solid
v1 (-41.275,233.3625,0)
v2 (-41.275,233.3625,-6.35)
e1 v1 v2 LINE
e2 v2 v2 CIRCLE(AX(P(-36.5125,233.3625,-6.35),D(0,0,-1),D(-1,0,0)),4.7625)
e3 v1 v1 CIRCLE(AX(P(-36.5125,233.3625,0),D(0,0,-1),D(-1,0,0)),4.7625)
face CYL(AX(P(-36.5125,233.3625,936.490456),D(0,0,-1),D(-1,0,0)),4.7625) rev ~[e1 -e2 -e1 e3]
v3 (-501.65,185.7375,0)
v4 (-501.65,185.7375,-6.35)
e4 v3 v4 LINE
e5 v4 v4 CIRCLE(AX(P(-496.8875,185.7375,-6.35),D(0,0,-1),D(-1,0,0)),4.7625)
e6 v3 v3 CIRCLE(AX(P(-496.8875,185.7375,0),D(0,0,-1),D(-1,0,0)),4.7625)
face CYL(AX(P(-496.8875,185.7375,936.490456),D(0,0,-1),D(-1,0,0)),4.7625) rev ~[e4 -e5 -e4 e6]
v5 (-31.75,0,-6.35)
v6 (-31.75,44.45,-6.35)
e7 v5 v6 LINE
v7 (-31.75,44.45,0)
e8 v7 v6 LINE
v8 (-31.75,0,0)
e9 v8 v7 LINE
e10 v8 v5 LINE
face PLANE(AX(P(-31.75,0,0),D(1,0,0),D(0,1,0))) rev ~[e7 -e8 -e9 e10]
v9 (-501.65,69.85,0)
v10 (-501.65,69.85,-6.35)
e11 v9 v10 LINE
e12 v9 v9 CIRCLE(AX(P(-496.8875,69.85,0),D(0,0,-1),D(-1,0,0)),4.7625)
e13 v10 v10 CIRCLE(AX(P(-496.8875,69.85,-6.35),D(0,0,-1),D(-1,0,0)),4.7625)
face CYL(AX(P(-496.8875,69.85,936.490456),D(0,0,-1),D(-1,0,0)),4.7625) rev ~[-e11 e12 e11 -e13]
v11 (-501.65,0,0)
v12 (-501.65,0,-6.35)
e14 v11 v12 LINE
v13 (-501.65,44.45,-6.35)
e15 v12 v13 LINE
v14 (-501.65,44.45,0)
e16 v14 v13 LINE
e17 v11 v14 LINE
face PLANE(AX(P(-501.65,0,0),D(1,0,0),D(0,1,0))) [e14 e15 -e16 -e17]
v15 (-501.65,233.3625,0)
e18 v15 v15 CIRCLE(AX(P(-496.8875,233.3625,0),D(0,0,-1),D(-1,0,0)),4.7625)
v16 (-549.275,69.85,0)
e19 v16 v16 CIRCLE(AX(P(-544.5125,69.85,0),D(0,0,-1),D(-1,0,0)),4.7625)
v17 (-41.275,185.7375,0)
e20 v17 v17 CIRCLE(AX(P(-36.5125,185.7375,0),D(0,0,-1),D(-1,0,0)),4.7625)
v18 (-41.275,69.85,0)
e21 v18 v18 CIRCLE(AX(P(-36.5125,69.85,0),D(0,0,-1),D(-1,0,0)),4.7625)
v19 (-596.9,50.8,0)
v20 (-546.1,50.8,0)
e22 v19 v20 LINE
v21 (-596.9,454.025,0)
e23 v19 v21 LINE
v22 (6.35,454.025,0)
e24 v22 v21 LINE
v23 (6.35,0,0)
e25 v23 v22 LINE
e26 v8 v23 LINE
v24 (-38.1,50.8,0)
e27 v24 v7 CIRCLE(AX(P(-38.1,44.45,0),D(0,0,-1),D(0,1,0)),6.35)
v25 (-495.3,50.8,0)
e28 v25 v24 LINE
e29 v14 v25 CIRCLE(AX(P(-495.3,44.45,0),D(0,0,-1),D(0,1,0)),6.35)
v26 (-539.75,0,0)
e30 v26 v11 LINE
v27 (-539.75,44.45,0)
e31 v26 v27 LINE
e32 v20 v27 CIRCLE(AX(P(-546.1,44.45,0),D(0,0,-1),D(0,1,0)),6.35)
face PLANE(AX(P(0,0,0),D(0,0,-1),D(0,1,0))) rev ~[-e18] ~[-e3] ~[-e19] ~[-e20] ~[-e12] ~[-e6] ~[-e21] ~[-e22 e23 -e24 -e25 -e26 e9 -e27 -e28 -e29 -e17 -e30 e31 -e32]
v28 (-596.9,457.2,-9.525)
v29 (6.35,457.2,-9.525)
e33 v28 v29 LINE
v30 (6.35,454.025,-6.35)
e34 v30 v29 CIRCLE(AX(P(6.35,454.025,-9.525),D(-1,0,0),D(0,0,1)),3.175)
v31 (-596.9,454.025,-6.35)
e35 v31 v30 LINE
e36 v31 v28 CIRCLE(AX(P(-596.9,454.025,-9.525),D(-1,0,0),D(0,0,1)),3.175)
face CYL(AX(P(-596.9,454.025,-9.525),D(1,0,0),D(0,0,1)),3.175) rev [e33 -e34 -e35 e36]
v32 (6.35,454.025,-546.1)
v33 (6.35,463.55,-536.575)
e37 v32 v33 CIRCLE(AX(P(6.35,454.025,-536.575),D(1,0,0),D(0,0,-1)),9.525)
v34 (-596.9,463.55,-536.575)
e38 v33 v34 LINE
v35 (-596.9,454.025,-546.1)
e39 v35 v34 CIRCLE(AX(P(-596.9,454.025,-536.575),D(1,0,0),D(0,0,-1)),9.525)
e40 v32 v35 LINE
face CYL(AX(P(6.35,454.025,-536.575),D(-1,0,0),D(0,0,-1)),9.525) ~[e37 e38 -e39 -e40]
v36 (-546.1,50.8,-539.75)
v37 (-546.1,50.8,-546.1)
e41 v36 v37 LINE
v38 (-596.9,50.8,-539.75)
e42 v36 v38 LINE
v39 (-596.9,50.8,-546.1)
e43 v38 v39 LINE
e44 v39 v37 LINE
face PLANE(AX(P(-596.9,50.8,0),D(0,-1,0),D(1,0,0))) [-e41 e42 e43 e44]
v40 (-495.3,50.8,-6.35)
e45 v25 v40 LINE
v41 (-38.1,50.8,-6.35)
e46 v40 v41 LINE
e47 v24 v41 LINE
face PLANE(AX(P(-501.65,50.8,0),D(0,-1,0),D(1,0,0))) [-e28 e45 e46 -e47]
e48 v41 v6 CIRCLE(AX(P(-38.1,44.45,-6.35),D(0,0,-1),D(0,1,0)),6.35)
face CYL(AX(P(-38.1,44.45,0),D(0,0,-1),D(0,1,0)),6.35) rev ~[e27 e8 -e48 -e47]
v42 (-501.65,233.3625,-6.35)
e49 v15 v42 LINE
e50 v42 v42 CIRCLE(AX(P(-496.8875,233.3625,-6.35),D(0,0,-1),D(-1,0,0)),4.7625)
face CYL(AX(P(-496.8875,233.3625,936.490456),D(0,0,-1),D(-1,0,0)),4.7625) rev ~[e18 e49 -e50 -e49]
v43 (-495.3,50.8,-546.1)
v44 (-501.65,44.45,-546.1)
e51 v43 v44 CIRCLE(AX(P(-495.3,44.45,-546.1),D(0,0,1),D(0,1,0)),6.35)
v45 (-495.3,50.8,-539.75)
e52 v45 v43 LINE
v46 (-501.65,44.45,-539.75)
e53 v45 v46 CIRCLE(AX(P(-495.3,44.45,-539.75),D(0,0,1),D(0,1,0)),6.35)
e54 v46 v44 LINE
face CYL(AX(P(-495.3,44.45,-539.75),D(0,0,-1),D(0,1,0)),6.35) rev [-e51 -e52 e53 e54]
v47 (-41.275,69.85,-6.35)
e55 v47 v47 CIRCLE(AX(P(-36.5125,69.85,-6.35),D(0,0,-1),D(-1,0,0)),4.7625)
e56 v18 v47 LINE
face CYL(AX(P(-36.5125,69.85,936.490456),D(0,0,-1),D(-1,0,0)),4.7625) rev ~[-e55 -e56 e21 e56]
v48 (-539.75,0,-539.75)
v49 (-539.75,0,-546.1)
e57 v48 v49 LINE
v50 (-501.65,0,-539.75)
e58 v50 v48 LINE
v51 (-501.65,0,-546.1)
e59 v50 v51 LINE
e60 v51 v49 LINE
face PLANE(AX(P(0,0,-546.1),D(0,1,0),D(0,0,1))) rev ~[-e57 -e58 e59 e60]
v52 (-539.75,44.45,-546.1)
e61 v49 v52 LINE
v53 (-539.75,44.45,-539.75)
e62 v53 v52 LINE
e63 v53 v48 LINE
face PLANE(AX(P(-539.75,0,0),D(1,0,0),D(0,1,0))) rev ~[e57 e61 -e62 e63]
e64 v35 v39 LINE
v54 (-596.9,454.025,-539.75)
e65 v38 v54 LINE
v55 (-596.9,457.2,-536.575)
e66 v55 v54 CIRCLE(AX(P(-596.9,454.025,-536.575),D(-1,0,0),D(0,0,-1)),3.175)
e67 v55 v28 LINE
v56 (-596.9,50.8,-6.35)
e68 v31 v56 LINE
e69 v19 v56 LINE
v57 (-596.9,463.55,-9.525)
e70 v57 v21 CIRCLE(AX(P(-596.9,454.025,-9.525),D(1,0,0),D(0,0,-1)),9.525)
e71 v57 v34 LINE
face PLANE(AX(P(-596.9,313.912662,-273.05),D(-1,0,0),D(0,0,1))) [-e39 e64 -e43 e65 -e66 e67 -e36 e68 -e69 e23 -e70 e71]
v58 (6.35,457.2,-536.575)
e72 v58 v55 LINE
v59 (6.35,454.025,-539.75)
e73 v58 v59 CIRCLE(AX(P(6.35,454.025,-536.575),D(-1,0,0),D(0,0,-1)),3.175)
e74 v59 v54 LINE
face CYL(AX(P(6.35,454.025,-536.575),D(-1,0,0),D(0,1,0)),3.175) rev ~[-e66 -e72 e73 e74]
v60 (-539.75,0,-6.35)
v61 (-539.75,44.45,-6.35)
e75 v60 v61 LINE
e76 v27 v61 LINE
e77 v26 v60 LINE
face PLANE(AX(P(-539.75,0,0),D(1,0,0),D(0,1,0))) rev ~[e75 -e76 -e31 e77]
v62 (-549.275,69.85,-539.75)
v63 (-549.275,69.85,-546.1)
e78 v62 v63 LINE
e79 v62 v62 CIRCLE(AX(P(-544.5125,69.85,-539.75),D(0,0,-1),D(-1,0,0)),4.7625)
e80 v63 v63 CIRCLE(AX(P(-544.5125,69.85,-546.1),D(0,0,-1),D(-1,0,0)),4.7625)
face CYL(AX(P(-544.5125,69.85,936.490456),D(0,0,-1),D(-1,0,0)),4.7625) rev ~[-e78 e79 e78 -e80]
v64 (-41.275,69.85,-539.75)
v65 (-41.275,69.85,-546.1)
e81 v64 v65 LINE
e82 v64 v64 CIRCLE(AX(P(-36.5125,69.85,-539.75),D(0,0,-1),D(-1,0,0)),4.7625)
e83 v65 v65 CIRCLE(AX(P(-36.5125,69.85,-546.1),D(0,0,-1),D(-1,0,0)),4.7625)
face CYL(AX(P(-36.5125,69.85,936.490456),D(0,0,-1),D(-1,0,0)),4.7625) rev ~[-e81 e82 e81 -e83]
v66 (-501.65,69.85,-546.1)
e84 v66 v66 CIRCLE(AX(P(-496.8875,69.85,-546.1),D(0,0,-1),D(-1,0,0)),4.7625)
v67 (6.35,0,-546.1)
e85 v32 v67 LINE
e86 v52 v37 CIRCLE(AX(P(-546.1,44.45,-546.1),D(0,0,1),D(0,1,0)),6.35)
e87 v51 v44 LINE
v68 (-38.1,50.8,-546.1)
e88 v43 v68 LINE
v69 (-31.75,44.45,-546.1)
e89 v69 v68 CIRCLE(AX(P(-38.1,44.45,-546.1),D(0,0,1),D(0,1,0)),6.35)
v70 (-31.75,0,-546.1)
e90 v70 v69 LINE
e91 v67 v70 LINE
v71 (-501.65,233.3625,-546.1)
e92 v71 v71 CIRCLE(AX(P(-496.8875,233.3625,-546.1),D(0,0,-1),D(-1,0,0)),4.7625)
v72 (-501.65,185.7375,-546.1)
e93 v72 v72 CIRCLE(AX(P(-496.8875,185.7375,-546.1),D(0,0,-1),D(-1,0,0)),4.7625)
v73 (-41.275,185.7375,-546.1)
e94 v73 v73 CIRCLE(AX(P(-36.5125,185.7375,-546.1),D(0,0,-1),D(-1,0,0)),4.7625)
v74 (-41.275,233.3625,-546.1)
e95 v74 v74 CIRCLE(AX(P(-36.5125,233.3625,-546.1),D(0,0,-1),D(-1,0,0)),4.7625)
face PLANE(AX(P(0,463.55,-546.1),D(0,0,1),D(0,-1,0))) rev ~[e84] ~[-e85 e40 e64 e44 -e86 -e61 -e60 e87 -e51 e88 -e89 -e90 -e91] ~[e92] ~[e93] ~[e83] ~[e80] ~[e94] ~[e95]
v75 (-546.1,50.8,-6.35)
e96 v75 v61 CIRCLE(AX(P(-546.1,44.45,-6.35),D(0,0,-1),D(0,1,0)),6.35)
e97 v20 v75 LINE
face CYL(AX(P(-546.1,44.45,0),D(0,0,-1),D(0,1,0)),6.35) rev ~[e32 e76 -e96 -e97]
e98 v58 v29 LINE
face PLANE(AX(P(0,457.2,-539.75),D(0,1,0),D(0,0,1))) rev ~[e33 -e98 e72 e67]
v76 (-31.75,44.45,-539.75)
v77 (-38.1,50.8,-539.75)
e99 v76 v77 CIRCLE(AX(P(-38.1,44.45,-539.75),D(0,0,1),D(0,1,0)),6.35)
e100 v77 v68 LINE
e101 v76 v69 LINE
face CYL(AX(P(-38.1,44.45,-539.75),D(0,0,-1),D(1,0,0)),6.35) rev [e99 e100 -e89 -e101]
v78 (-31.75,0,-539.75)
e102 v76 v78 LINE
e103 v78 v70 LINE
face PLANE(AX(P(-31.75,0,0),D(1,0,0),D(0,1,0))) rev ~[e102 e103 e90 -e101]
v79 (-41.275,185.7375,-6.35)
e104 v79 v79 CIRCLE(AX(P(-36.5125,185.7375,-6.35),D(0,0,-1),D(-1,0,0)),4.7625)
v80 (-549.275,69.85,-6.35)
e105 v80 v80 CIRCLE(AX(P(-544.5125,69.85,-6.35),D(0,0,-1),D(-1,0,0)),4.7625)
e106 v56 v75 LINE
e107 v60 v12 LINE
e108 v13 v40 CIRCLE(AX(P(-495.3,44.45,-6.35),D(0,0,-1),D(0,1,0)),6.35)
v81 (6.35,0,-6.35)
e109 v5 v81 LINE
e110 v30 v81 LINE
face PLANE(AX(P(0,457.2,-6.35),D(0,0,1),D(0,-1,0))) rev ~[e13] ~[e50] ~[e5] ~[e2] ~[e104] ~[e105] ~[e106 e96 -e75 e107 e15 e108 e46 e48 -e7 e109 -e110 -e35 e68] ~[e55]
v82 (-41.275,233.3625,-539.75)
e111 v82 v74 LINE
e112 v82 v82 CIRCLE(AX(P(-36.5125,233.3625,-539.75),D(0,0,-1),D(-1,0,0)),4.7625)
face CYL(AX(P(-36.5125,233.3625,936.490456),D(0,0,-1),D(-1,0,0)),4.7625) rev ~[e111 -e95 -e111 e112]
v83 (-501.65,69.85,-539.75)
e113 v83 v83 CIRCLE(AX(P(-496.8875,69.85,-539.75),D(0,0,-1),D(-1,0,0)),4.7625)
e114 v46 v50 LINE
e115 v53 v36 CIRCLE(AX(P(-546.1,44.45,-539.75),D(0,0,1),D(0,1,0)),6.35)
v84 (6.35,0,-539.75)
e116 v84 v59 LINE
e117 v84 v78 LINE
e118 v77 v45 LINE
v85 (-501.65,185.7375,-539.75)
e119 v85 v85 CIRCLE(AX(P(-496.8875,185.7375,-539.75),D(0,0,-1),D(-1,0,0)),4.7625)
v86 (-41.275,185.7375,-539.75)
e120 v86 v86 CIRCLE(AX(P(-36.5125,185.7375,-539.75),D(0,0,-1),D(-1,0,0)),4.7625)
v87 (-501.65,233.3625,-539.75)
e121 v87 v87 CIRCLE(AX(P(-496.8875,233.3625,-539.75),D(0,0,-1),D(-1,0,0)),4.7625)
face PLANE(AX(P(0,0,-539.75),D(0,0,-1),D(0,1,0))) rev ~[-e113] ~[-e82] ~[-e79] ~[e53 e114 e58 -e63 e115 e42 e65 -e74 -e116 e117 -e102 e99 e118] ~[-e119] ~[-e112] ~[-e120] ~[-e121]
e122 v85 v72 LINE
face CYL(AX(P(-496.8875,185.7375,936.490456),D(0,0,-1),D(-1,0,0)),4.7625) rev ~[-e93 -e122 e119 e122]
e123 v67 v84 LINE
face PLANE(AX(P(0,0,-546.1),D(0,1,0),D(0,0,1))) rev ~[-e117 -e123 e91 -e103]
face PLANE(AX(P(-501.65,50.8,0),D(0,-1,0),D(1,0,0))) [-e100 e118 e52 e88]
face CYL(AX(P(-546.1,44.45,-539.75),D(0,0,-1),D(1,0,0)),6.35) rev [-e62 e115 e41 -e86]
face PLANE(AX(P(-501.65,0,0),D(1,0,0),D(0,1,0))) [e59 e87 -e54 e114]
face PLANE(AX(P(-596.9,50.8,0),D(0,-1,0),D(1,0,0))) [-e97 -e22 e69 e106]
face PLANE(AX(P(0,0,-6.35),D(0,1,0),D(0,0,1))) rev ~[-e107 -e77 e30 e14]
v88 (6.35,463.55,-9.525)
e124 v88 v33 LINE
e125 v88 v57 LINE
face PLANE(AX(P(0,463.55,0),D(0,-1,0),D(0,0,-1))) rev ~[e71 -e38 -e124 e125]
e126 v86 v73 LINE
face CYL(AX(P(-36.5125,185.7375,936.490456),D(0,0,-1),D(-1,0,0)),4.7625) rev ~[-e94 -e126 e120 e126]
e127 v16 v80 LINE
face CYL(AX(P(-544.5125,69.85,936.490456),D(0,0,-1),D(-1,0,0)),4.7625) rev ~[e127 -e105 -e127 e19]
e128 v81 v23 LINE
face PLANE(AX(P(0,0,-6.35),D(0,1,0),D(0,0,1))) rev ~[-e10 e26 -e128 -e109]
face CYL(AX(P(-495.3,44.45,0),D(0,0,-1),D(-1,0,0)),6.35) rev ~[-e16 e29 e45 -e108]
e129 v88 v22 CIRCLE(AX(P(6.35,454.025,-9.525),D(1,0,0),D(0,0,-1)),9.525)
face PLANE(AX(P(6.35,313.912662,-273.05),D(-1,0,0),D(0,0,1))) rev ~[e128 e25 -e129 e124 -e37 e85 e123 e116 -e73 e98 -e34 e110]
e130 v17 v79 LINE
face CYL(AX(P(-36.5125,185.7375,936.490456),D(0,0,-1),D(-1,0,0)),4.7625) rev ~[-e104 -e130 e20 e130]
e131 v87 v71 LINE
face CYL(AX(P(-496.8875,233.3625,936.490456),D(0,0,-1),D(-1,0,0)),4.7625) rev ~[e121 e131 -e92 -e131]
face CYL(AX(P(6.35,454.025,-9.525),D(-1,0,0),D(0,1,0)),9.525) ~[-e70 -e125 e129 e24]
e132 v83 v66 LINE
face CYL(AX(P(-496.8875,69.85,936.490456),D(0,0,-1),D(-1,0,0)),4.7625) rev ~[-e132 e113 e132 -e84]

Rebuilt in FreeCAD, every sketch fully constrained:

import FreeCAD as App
import Part
import Sketcher
from FreeCAD import Vector
Q = App.Units.Quantity


def edges_at(feature, points):
    """Names of the edges that pass closest to the given points."""
    edges = feature.Shape.Edges
    near = lambda p: min(range(len(edges)), key=lambda i: edges[i].distToShape(Part.Vertex(*p))[0])
    return sorted({f"Edge{near(p) + 1}" for p in points})


def add_polygon(sketch, points):
    """Adds a closed chain of lines whose ends are joined by coincident constraints."""
    first, n = sketch.GeometryCount, len(points)
    for a, b in zip(points, points[1:] + points[:1]):
        sketch.addGeometry(Part.LineSegment(App.Vector(*a, 0), App.Vector(*b, 0)), False)
    for i in range(n):
        sketch.addConstraint(Sketcher.Constraint("Coincident", first + i, 2, first + (i + 1) % n, 1))

doc = App.newDocument("Part")
body = doc.addObject("PartDesign::Body", "Body")

# Sketch on YZ plane
sketch1 = body.newObject("Sketcher::SketchObject", "Sketch")
sketch1.AttachmentSupport = (doc.getObject("YZ_Plane"), [""])
sketch1.MapMode = "FlatFace"
add_polygon(sketch1, [(463.55, 0), (0, 0), (0, -6.35), (457.2, -6.35), (457.2, -539.75), (0, -539.75), (0, -546.1), (463.55, -546.1)])  # lines 0-7
sketch1.addConstraint(Sketcher.Constraint("Horizontal", 0))
sketch1.addConstraint(Sketcher.Constraint("Vertical", 1))
sketch1.addConstraint(Sketcher.Constraint("Horizontal", 2))
sketch1.addConstraint(Sketcher.Constraint("Vertical", 3))
sketch1.addConstraint(Sketcher.Constraint("Horizontal", 4))
sketch1.addConstraint(Sketcher.Constraint("Vertical", 5))
sketch1.addConstraint(Sketcher.Constraint("Horizontal", 6))
sketch1.addConstraint(Sketcher.Constraint("Vertical", 7))
sketch1.addConstraint(Sketcher.Constraint("Coincident", 0, 2, -1, 1))
sketch1.addConstraint(Sketcher.Constraint("PointOnObject", 4, 2, -2))
sketch1.addConstraint(Sketcher.Constraint("Equal", 1, 5))
sketch1.addConstraint(Sketcher.Constraint("DistanceX", 2, 1, 2, 2, Q("18 in")))
sketch1.addConstraint(Sketcher.Constraint("DistanceY", 3, 2, 3, 1, Q("21 in")))
sketch1.addConstraint(Sketcher.Constraint("DistanceY", 7, 1, 7, 2, Q("21.5 in")))
sketch1.addConstraint(Sketcher.Constraint("DistanceX", 0, 2, 0, 1, Q("18.25 in")))
pad1 = body.newObject("PartDesign::Pad", "Pad")
pad1.Profile = sketch1
pad1.Type = "TwoLengths"
pad1.Length = Q("0.25 in")
pad1.Length2 = Q("23.5 in")
doc.recompute()

fillet = body.newObject("PartDesign::Fillet", "Fillet")
fillet.Base = (pad1, edges_at(pad1, [(-295.275, 457.2, -539.75), (-295.275, 457.2, -6.35)]))
fillet.Radius = Q("0.125 in")
doc.recompute()

fillet2 = body.newObject("PartDesign::Fillet", "Fillet001")
fillet2.Base = (fillet, edges_at(fillet, [(-295.275, 463.55, 0), (-295.275, 463.55, -546.1)]))
fillet2.Radius = Q("0.375 in")

# Sketch on XY plane
sketch2 = body.newObject("Sketcher::SketchObject", "Sketch001")
sketch2.AttachmentSupport = (doc.getObject("XY_Plane"), [""])
sketch2.MapMode = "FlatFace"
add_polygon(sketch2, [(-501.65, 50.8), (-501.65, 0), (-31.75, 0), (-31.75, 50.8)])  # lines 0-3
add_polygon(sketch2, [(-596.9, 50.8), (-596.9, 0), (-539.75, 0), (-539.75, 50.8)])  # lines 4-7
sketch2.addConstraint(Sketcher.Constraint("Vertical", 0))
sketch2.addConstraint(Sketcher.Constraint("Horizontal", 1))
sketch2.addConstraint(Sketcher.Constraint("Vertical", 2))
sketch2.addConstraint(Sketcher.Constraint("Horizontal", 3))
sketch2.addConstraint(Sketcher.Constraint("Vertical", 4))
sketch2.addConstraint(Sketcher.Constraint("Horizontal", 5))
sketch2.addConstraint(Sketcher.Constraint("Vertical", 6))
sketch2.addConstraint(Sketcher.Constraint("Horizontal", 7))
sketch2.addConstraint(Sketcher.Constraint("PointOnObject", 0, 2, -1))
sketch2.addConstraint(Sketcher.Constraint("PointOnObject", 4, 2, -1))
sketch2.addConstraint(Sketcher.Constraint("Horizontal", 3, 2, 6, 2))
sketch2.addConstraint(Sketcher.Constraint("DistanceY", 0, 2, 0, 1, Q("2 in")))
sketch2.addConstraint(Sketcher.Constraint("DistanceX", 1, 1, 1, 2, Q("18.5 in")))
sketch2.addConstraint(Sketcher.Constraint("DistanceX", 5, 2, 1, 2, Q("20 in")))
sketch2.addConstraint(Sketcher.Constraint("DistanceX", 5, 1, 5, 2, Q("2.25 in")))
sketch2.addConstraint(Sketcher.Constraint("DistanceX", 4, 2, -1, 1, Q("23.5 in")))
pocket1 = body.newObject("PartDesign::Pocket", "Pocket")
pocket1.Profile = sketch2
pocket1.Type = "ThroughAll"
doc.recompute()

fillet3 = body.newObject("PartDesign::Fillet", "Fillet002")
fillet3.Base = (pocket1, edges_at(pocket1, [
    (-31.75, 50.8, -542.925),
    (-501.65, 50.8, -542.925),
    (-31.75, 50.8, -3.175),
    (-501.65, 50.8, -3.175),
    (-539.75, 50.8, -542.925),
    (-539.75, 50.8, -3.175),
]))
fillet3.Radius = Q("0.25 in")

# Sketch on XY plane
sketch3 = body.newObject("Sketcher::SketchObject", "Sketch002")
sketch3.AttachmentSupport = (doc.getObject("XY_Plane"), [""])
sketch3.MapMode = "FlatFace"
sketch3.addGeometry(Part.Circle(Vector(-36.5125, 69.85, 0), Vector(0, 0, 1), 4.7625), False)
sketch3.addGeometry(Part.Circle(Vector(-36.5125, 185.7375, 0), Vector(0, 0, 1), 4.7625), False)
sketch3.addGeometry(Part.Circle(Vector(-36.5125, 233.3625, 0), Vector(0, 0, 1), 4.7625), False)
sketch3.addGeometry(Part.Circle(Vector(-496.8875, 69.85, 0), Vector(0, 0, 1), 4.7625), False)
sketch3.addGeometry(Part.Circle(Vector(-496.8875, 185.7375, 0), Vector(0, 0, 1), 4.7625), False)
sketch3.addGeometry(Part.Circle(Vector(-496.8875, 233.3625, 0), Vector(0, 0, 1), 4.7625), False)
sketch3.addGeometry(Part.Circle(Vector(-544.5125, 69.85, 0), Vector(0, 0, 1), 4.7625), False)
sketch3.addConstraint(Sketcher.Constraint("Equal", 0, 1))
sketch3.addConstraint(Sketcher.Constraint("Equal", 1, 2))
sketch3.addConstraint(Sketcher.Constraint("Equal", 2, 3))
sketch3.addConstraint(Sketcher.Constraint("Equal", 3, 4))
sketch3.addConstraint(Sketcher.Constraint("Equal", 4, 5))
sketch3.addConstraint(Sketcher.Constraint("Equal", 5, 6))
sketch3.addConstraint(Sketcher.Constraint("Horizontal", 0, 3, 3, 3))
sketch3.addConstraint(Sketcher.Constraint("Horizontal", 1, 3, 4, 3))
sketch3.addConstraint(Sketcher.Constraint("Horizontal", 2, 3, 5, 3))
sketch3.addConstraint(Sketcher.Constraint("Horizontal", 3, 3, 6, 3))
sketch3.addConstraint(Sketcher.Constraint("Vertical", 0, 3, 1, 3))
sketch3.addConstraint(Sketcher.Constraint("Vertical", 1, 3, 2, 3))
sketch3.addConstraint(Sketcher.Constraint("Vertical", 3, 3, 4, 3))
sketch3.addConstraint(Sketcher.Constraint("Vertical", 4, 3, 5, 3))
sketch3.addConstraint(Sketcher.Constraint("Diameter", 0, Q("0.375 in")))
sketch3.addConstraint(Sketcher.Constraint("DistanceX", 6, 3, 0, 3, Q("20 in")))
sketch3.addConstraint(Sketcher.Constraint("DistanceY", -1, 1, 0, 3, Q("2.75 in")))
sketch3.addConstraint(Sketcher.Constraint("DistanceX", 0, 3, -1, 1, Q("1.4375 in")))
sketch3.addConstraint(Sketcher.Constraint("DistanceY", -1, 1, 1, 3, Q("7.3125 in")))
sketch3.addConstraint(Sketcher.Constraint("DistanceY", -1, 1, 2, 3, Q("9.1875 in")))
sketch3.addConstraint(Sketcher.Constraint("DistanceX", 3, 3, -1, 1, Q("19.5625 in")))
doc.recompute()
hole = body.newObject("PartDesign::Hole", "Hole")
hole.Profile = sketch3
hole.ThreadType = "None"
hole.Diameter = Q("0.375 in")
hole.DepthType = "ThroughAll"

doc.recompute()
